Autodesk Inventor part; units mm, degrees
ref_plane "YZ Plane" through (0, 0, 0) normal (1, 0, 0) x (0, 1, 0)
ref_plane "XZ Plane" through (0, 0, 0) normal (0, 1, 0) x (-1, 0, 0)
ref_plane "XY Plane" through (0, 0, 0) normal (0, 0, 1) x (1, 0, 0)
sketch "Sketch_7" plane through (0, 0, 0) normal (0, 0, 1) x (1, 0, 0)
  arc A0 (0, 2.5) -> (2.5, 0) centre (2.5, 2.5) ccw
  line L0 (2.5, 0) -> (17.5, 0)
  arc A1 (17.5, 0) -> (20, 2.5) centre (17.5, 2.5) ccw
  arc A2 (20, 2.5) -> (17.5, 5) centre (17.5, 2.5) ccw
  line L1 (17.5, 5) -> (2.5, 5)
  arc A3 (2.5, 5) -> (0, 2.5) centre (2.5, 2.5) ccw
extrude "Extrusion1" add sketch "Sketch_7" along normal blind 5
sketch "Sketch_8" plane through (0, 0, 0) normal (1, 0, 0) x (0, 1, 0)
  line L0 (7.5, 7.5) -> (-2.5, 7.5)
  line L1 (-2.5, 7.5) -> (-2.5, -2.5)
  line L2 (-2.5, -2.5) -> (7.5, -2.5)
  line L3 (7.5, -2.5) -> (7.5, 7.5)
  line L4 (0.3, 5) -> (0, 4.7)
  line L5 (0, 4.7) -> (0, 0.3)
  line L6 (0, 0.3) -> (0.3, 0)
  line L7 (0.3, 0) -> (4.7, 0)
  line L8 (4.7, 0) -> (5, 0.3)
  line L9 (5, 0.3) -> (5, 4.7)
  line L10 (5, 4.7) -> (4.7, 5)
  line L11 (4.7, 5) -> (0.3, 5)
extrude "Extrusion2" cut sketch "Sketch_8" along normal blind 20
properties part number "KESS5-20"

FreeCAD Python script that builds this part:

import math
import FreeCAD as App
import Part
import Sketcher
from FreeCAD import Vector

doc = App.newDocument("Part")
body = doc.addObject("PartDesign::Body", "Body")

# Sketch on XY plane
sketch1 = doc.addObject("Sketcher::SketchObject", "Sketch")
body.addObject(sketch1)
sketch1.AttachmentSupport = (doc.XY_Plane, [""])
sketch1.MapMode = "FlatFace"
sketch1.addGeometry([
    Part.ArcOfCircle(Part.Circle(Vector(2.5, 2.5, 0), Vector(0, 0, 1), 2.5), math.radians(90), math.radians(270)),
    Part.LineSegment(Vector(2.5, 0, 0), Vector(17.5, 0, 0)),
    Part.ArcOfCircle(Part.Circle(Vector(17.5, 2.5, 0), Vector(0, 0, 1), 2.5), math.radians(-90), math.radians(90)),
    Part.LineSegment(Vector(17.5, 5, 0), Vector(2.5, 5, 0)),
], False)
sketch1.addConstraint([
    Sketcher.Constraint("Tangent", 0, 2, 1, 1),
    Sketcher.Constraint("Tangent", 1, 2, 2, 1),
    Sketcher.Constraint("Tangent", 2, 2, 3, 1),
    Sketcher.Constraint("Tangent", 3, 2, 0, 1),
    Sketcher.Constraint("Horizontal", 1),
    Sketcher.Constraint("Horizontal", 3),
    Sketcher.Constraint("PointOnObject", 0, 2, -1),
    Sketcher.Constraint("Radius", 0, 2.5),
    Sketcher.Constraint("DistanceX", 1, 1, 1, 2, 15.0),
    Sketcher.Constraint("DistanceX", -1, 1, 0, 3, 2.5),
])
pad1 = doc.addObject("PartDesign::Pad", "Pad")
body.addObject(pad1)
pad1.Profile = sketch1
pad1.Length = 5

# Sketch on YZ plane
sketch2 = doc.addObject("Sketcher::SketchObject", "Sketch001")
body.addObject(sketch2)
sketch2.AttachmentSupport = (doc.YZ_Plane, [""])
sketch2.MapMode = "FlatFace"
sketch2.addGeometry([
    Part.LineSegment(Vector(7.5, -2.5, 0), Vector(7.5, 7.5, 0)),  # 0
    Part.LineSegment(Vector(7.5, 7.5, 0), Vector(-2.5, 7.5, 0)),  # 1
    Part.LineSegment(Vector(-2.5, 7.5, 0), Vector(-2.5, -2.5, 0)),  # 2
    Part.LineSegment(Vector(-2.5, -2.5, 0), Vector(7.5, -2.5, 0)),  # 3
    Part.LineSegment(Vector(0, 4.7, 0), Vector(0.3, 5, 0)),  # 4
    Part.LineSegment(Vector(0.3, 5, 0), Vector(4.7, 5, 0)),  # 5
    Part.LineSegment(Vector(4.7, 5, 0), Vector(5, 4.7, 0)),  # 6
    Part.LineSegment(Vector(5, 4.7, 0), Vector(5, 0.3, 0)),  # 7
    Part.LineSegment(Vector(5, 0.3, 0), Vector(4.7, 0, 0)),  # 8
    Part.LineSegment(Vector(4.7, 0, 0), Vector(0.3, 0, 0)),  # 9
    Part.LineSegment(Vector(0.3, 0, 0), Vector(0, 0.3, 0)),  # 10
    Part.LineSegment(Vector(0, 0.3, 0), Vector(0, 4.7, 0)),  # 11
], False)
sketch2.addConstraint([
    Sketcher.Constraint("Coincident", 0, 2, 1, 1),
    Sketcher.Constraint("Coincident", 1, 2, 2, 1),
    Sketcher.Constraint("Coincident", 2, 2, 3, 1),
    Sketcher.Constraint("Coincident", 3, 2, 0, 1),
    Sketcher.Constraint("Coincident", 4, 2, 5, 1),
    Sketcher.Constraint("Coincident", 5, 2, 6, 1),
    Sketcher.Constraint("Coincident", 6, 2, 7, 1),
    Sketcher.Constraint("Coincident", 7, 2, 8, 1),
    Sketcher.Constraint("Coincident", 8, 2, 9, 1),
    Sketcher.Constraint("Coincident", 9, 2, 10, 1),
    Sketcher.Constraint("Coincident", 10, 2, 11, 1),
    Sketcher.Constraint("Coincident", 11, 2, 4, 1),
    Sketcher.Constraint("Vertical", 0),
    Sketcher.Constraint("Horizontal", 1),
    Sketcher.Constraint("Vertical", 2),
    Sketcher.Constraint("Horizontal", 3),
    Sketcher.Constraint("Horizontal", 5),
    Sketcher.Constraint("Vertical", 7),
    Sketcher.Constraint("Horizontal", 9),
    Sketcher.Constraint("Vertical", 11),
    Sketcher.Constraint("PointOnObject", 8, 2, -1),
    Sketcher.Constraint("PointOnObject", 10, 2, -2),
    Sketcher.Constraint("Perpendicular", 4, 6),
    Sketcher.Constraint("Perpendicular", 6, 8),
    Sketcher.Constraint("Perpendicular", 8, 10),
    Sketcher.Constraint("Horizontal", 7, 2, 10, 2),
    Sketcher.Constraint("Horizontal", 6, 2, 11, 2),
    Sketcher.Constraint("Vertical", 5, 2, 8, 2),
    Sketcher.Constraint("Vertical", 4, 2, 9, 2),
    Sketcher.Constraint("Equal", 3, 0),
    Sketcher.Constraint("Equal", 9, 7),
    Sketcher.Constraint("DistanceX", 1, 2, 1, 1, 10.0),
    Sketcher.Constraint("DistanceX", 5, 1, 5, 2, 4.4),
    Sketcher.Constraint("DistanceY", -1, 1, 4, 2, 5.0),
    Sketcher.Constraint("DistanceX", -1, 1, 0, 2, 7.5),
    Sketcher.Constraint("DistanceY", -1, 1, 0, 2, 7.5),
])
pocket1 = doc.addObject("PartDesign::Pocket", "Pocket")
body.addObject(pocket1)
pocket1.Profile = sketch2
pocket1.Length = 20
pocket1.Reversed = True

doc.recompute()
